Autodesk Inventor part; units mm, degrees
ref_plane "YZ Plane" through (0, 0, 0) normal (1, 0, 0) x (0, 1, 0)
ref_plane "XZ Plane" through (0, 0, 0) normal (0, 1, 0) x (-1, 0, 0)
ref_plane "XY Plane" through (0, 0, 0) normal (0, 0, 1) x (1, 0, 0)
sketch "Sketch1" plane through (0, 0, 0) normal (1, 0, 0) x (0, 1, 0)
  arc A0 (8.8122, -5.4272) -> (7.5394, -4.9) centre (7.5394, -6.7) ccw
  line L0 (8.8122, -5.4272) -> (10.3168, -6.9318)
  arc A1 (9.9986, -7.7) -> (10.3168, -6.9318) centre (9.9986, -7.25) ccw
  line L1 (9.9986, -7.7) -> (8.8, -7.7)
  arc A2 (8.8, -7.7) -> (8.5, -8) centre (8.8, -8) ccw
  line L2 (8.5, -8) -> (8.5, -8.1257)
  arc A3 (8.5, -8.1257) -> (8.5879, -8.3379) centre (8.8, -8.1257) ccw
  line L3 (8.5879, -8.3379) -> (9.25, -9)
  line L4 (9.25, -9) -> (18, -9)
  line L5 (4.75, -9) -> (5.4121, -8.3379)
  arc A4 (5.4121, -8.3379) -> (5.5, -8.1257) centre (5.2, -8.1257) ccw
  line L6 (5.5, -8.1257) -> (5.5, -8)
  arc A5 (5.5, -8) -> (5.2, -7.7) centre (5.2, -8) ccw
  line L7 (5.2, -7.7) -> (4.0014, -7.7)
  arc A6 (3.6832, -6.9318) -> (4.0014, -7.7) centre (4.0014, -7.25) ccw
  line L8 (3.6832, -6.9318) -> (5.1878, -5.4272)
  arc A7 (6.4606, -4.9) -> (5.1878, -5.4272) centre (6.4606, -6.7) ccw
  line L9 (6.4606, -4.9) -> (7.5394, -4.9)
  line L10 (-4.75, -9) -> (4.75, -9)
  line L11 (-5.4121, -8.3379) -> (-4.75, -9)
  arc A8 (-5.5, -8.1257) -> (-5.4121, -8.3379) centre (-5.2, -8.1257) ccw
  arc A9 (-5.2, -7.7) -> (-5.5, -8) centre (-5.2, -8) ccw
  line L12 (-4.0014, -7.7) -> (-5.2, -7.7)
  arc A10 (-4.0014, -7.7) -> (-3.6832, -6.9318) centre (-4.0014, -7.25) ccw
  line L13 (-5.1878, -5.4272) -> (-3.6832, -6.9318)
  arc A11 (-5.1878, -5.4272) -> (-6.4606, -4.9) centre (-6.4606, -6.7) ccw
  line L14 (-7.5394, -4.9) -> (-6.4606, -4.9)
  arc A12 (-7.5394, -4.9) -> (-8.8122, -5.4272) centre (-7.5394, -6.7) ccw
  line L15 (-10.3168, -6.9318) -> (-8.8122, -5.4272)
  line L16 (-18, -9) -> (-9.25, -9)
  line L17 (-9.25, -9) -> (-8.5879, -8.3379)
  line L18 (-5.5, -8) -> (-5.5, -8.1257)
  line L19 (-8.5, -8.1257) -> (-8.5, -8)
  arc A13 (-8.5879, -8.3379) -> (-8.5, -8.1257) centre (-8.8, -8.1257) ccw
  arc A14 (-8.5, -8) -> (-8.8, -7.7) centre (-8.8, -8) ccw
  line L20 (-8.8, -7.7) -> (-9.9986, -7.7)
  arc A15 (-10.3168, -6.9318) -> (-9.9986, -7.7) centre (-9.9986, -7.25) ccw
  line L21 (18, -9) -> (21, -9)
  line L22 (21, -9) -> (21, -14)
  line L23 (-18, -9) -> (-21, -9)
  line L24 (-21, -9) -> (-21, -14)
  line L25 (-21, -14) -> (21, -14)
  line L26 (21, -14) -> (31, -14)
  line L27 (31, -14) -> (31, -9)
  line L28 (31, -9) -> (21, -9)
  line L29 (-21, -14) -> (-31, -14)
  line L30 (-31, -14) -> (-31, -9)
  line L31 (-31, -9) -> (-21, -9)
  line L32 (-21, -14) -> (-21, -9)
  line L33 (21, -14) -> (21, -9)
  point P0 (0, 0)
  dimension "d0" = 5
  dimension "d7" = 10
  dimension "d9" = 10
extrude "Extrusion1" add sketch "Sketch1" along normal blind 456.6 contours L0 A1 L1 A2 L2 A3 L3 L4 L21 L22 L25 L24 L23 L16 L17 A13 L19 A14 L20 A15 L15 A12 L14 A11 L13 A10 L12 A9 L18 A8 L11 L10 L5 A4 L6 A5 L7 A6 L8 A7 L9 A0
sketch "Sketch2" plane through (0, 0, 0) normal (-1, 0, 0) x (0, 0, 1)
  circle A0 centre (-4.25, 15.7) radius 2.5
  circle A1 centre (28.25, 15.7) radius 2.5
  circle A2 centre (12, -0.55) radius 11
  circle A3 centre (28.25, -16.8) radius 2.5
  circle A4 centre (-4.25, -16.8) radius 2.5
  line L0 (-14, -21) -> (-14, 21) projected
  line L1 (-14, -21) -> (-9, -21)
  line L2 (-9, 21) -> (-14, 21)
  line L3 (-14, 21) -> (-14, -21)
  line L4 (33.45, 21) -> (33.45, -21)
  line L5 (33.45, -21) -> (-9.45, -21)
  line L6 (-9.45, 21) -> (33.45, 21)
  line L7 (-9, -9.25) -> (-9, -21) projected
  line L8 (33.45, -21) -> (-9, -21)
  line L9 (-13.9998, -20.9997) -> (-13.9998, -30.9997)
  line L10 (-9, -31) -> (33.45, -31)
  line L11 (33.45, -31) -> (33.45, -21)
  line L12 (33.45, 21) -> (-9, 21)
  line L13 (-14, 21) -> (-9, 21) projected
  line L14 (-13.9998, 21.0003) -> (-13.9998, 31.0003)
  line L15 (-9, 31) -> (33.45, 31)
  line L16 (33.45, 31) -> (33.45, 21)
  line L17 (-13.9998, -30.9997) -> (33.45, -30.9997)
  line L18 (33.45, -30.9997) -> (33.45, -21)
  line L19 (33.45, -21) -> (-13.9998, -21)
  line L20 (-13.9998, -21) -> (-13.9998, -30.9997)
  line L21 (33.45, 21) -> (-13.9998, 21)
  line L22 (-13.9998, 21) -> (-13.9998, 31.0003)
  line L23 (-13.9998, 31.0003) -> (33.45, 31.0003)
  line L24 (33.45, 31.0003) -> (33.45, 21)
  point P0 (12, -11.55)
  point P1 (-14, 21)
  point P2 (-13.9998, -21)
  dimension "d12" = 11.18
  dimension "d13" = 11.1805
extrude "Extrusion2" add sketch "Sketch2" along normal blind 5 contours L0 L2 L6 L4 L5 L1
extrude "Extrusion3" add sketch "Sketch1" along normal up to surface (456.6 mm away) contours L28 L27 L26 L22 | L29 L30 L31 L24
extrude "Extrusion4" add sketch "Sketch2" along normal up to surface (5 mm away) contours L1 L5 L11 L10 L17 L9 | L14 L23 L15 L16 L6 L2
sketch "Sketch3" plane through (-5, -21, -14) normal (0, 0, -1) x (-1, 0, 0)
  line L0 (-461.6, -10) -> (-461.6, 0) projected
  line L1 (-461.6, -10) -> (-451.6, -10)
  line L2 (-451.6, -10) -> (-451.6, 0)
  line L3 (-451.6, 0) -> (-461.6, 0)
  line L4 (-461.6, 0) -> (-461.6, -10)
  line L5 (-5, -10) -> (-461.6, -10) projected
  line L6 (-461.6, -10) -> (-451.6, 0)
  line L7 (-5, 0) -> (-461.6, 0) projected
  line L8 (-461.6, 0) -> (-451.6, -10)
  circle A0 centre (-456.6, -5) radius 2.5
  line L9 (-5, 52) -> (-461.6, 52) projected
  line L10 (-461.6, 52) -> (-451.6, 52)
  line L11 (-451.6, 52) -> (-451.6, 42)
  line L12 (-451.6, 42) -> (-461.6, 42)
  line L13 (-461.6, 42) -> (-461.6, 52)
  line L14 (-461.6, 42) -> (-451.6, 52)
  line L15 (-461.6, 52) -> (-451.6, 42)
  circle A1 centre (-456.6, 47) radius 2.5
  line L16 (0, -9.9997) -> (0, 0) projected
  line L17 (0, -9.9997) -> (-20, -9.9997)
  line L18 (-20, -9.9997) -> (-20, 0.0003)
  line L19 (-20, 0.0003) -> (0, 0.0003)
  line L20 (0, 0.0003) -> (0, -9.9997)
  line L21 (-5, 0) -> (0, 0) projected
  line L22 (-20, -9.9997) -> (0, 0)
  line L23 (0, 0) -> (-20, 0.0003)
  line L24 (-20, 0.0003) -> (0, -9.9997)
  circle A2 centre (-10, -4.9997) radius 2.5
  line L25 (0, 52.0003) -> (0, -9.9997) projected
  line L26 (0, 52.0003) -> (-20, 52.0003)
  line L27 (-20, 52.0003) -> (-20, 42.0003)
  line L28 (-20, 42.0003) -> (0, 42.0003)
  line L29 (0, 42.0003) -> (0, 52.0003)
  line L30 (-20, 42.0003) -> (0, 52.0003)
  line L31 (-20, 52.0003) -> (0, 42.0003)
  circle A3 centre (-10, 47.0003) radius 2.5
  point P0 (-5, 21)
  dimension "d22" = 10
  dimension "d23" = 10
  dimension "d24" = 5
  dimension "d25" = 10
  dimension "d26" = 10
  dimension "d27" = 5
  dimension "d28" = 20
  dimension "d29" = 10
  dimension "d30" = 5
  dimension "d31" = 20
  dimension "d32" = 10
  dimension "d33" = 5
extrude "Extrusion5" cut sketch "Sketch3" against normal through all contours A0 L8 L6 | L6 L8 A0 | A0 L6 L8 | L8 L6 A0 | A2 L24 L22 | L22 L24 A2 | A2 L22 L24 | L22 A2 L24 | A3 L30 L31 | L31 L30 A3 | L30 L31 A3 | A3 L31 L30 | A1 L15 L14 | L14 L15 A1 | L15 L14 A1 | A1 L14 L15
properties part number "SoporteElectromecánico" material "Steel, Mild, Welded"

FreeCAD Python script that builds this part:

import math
import FreeCAD as App
import Part
import Sketcher
from FreeCAD import Vector


def add_polygon(sketch, points):
    """Adds a closed chain of lines whose ends are joined by coincident constraints."""
    first, n = sketch.GeometryCount, len(points)
    for a, b in zip(points, points[1:] + points[:1]):
        sketch.addGeometry(Part.LineSegment(App.Vector(*a, 0), App.Vector(*b, 0)), False)
    for i in range(n):
        sketch.addConstraint(Sketcher.Constraint("Coincident", first + i, 2, first + (i + 1) % n, 1))

doc = App.newDocument("Part")
params = doc.addObject("Spreadsheet::Sheet", "Params")
for row, (alias, value) in enumerate([
    ("sketch1_height", "5 mm"),
    ("sketch1_radius", "1.8 mm"),
    ("sketch1_radius2", "0.3 mm"),
    ("sketch1_width", "42 mm"),
    ("sketch1_radius3", "0.45 mm"),
    ("pad1_length", "456.6 mm"),
    ("sketch2_diameter", "5 mm"),
    ("sketch2_diameter2", "22 mm"),
    ("sketch2_width", "42 mm"),
    ("sketch2_height", "47.45 mm"),
    ("pad2_length", "5 mm"),
    ("sketch3_width", "10 mm"),
    ("sketch3_height", "5 mm"),
    ("pad3_length", "456.6 mm"),
    ("sketch4_width", "10 mm"),
    ("sketch4_height", "47.45 mm"),
    ("pad4_length", "5 mm"),
    ("sketch5_diameter", "5 mm"),
], start=1):
    params.set(f"A{row}", alias)
    params.set(f"B{row}", "=" + value)
    params.setAlias(f"B{row}", alias)

body = doc.addObject("PartDesign::Body", "Body")

# Sketch on YZ plane
sketch1 = body.newObject("Sketcher::SketchObject", "Sketch")
sketch1.AttachmentSupport = (doc.getObject("YZ_Plane"), [""])
sketch1.MapMode = "FlatFace"
sketch1.addGeometry([
    Part.LineSegment(Vector(10.3168, -6.9318, 0), Vector(8.8122, -5.4272, 0)),  # 0
    Part.ArcOfCircle(Part.Circle(Vector(7.5394, -6.7, 0), Vector(0, 0, 1), 1.800011), math.radians(45), math.radians(90)),  # 1
    Part.LineSegment(Vector(7.5394, -4.9, 0), Vector(6.4606, -4.9, 0)),  # 2
    Part.ArcOfCircle(Part.Circle(Vector(6.4606, -6.7, 0), Vector(0, 0, 1), 1.8), math.radians(90), math.radians(135)),  # 3
    Part.LineSegment(Vector(5.1878, -5.4272, 0), Vector(3.6832, -6.9318, 0)),  # 4
    Part.ArcOfCircle(Part.Circle(Vector(4.0014, -7.25, 0), Vector(0, 0, 1), 0.450003), math.radians(135), math.radians(270)),  # 5
    Part.LineSegment(Vector(4.0014, -7.7, 0), Vector(5.2, -7.7, 0)),  # 6
    Part.ArcOfCircle(Part.Circle(Vector(5.2, -8, 0), Vector(0, 0, 1), 0.3), math.radians(0), math.radians(90)),  # 7
    Part.LineSegment(Vector(5.5, -8, 0), Vector(5.5, -8.1257, 0)),  # 8
    Part.ArcOfCircle(Part.Circle(Vector(5.2, -8.1257, 0), Vector(0, 0, 1), 0.300025), math.radians(-45.013504), math.radians(0)),  # 9
    Part.LineSegment(Vector(5.4121, -8.3379, 0), Vector(4.75, -9, 0)),  # 10
    Part.LineSegment(Vector(4.75, -9, 0), Vector(-4.75, -9, 0)),  # 11
    Part.LineSegment(Vector(-4.75, -9, 0), Vector(-5.4121, -8.3379, 0)),  # 12
    Part.ArcOfCircle(Part.Circle(Vector(-5.2, -8.1257, 0), Vector(0, 0, 1), 0.3), math.radians(180), math.radians(225.013504)),  # 13
    Part.LineSegment(Vector(-5.5, -8.1257, 0), Vector(-5.5, -8, 0)),  # 14
    Part.ArcOfCircle(Part.Circle(Vector(-5.2, -8, 0), Vector(0, 0, 1), 0.3), math.radians(90), math.radians(180)),  # 15
    Part.LineSegment(Vector(-5.2, -7.7, 0), Vector(-4.0014, -7.7, 0)),  # 16
    Part.ArcOfCircle(Part.Circle(Vector(-4.0014, -7.25, 0), Vector(0, 0, 1), 0.45), math.radians(-90), math.radians(45)),  # 17
    Part.LineSegment(Vector(-3.6832, -6.9318, 0), Vector(-5.1878, -5.4272, 0)),  # 18
    Part.ArcOfCircle(Part.Circle(Vector(-6.4606, -6.7, 0), Vector(0, 0, 1), 1.800011), math.radians(45), math.radians(90)),  # 19
    Part.LineSegment(Vector(-6.4606, -4.9, 0), Vector(-7.5394, -4.9, 0)),  # 20
    Part.ArcOfCircle(Part.Circle(Vector(-7.5394, -6.7, 0), Vector(0, 0, 1), 1.8), math.radians(90), math.radians(135)),  # 21
    Part.LineSegment(Vector(-8.8122, -5.4272, 0), Vector(-10.3168, -6.9318, 0)),  # 22
    Part.ArcOfCircle(Part.Circle(Vector(-9.9986, -7.25, 0), Vector(0, 0, 1), 0.450003), math.radians(135), math.radians(270)),  # 23
    Part.LineSegment(Vector(-9.9986, -7.7, 0), Vector(-8.8, -7.7, 0)),  # 24
    Part.ArcOfCircle(Part.Circle(Vector(-8.8, -8, 0), Vector(0, 0, 1), 0.3), math.radians(0), math.radians(90)),  # 25
    Part.LineSegment(Vector(-8.5, -8, 0), Vector(-8.5, -8.1257, 0)),  # 26
    Part.ArcOfCircle(Part.Circle(Vector(-8.8, -8.1257, 0), Vector(0, 0, 1), 0.300025), math.radians(-45.013504), math.radians(0)),  # 27
    Part.LineSegment(Vector(-8.5879, -8.3379, 0), Vector(-9.25, -9, 0)),  # 28
    Part.LineSegment(Vector(-9.25, -9, 0), Vector(-21, -9, 0)),  # 29
    Part.LineSegment(Vector(-21, -9, 0), Vector(-21, -14, 0)),  # 30
    Part.LineSegment(Vector(-21, -14, 0), Vector(21, -14, 0)),  # 31
    Part.LineSegment(Vector(21, -14, 0), Vector(21, -9, 0)),  # 32
    Part.LineSegment(Vector(21, -9, 0), Vector(9.25, -9, 0)),  # 33
    Part.LineSegment(Vector(9.25, -9, 0), Vector(8.5879, -8.3379, 0)),  # 34
    Part.ArcOfCircle(Part.Circle(Vector(8.8, -8.1257, 0), Vector(0, 0, 1), 0.3), math.radians(180), math.radians(225.013504)),  # 35
    Part.LineSegment(Vector(8.5, -8.1257, 0), Vector(8.5, -8, 0)),  # 36
    Part.ArcOfCircle(Part.Circle(Vector(8.8, -8, 0), Vector(0, 0, 1), 0.3), math.radians(90), math.radians(180)),  # 37
    Part.LineSegment(Vector(8.8, -7.7, 0), Vector(9.9986, -7.7, 0)),  # 38
    Part.ArcOfCircle(Part.Circle(Vector(9.9986, -7.25, 0), Vector(0, 0, 1), 0.45), math.radians(-90), math.radians(45)),  # 39
], False)
sketch1.addConstraint([
    Sketcher.Constraint("Tangent", 0, 2, 1, 1),
    Sketcher.Constraint("Tangent", 1, 2, 2, 1),
    Sketcher.Constraint("Tangent", 2, 2, 3, 1),
    Sketcher.Constraint("Tangent", 3, 2, 4, 1),
    Sketcher.Constraint("Tangent", 4, 2, 5, 1),
    Sketcher.Constraint("Tangent", 5, 2, 6, 1),
    Sketcher.Constraint("Tangent", 6, 2, 7, 2),
    Sketcher.Constraint("Tangent", 7, 1, 8, 1),
    Sketcher.Constraint("Tangent", 8, 2, 9, 2),
    Sketcher.Constraint("Tangent", 9, 1, 10, 1),
    Sketcher.Constraint("Coincident", 10, 2, 11, 1),
    Sketcher.Constraint("Coincident", 11, 2, 12, 1),
    Sketcher.Constraint("Tangent", 12, 2, 13, 2),
    Sketcher.Constraint("Tangent", 13, 1, 14, 1),
    Sketcher.Constraint("Tangent", 14, 2, 15, 2),
    Sketcher.Constraint("Tangent", 15, 1, 16, 1),
    Sketcher.Constraint("Tangent", 16, 2, 17, 1),
    Sketcher.Constraint("Tangent", 17, 2, 18, 1),
    Sketcher.Constraint("Tangent", 18, 2, 19, 1),
    Sketcher.Constraint("Tangent", 19, 2, 20, 1),
    Sketcher.Constraint("Tangent", 20, 2, 21, 1),
    Sketcher.Constraint("Tangent", 21, 2, 22, 1),
    Sketcher.Constraint("Tangent", 22, 2, 23, 1),
    Sketcher.Constraint("Tangent", 23, 2, 24, 1),
    Sketcher.Constraint("Tangent", 24, 2, 25, 2),
    Sketcher.Constraint("Tangent", 25, 1, 26, 1),
    Sketcher.Constraint("Tangent", 26, 2, 27, 2),
    Sketcher.Constraint("Tangent", 27, 1, 28, 1),
    Sketcher.Constraint("Coincident", 28, 2, 29, 1),
    Sketcher.Constraint("Coincident", 29, 2, 30, 1),
    Sketcher.Constraint("Coincident", 30, 2, 31, 1),
    Sketcher.Constraint("Coincident", 31, 2, 32, 1),
    Sketcher.Constraint("Coincident", 32, 2, 33, 1),
    Sketcher.Constraint("Coincident", 33, 2, 34, 1),
    Sketcher.Constraint("Tangent", 34, 2, 35, 2),
    Sketcher.Constraint("Tangent", 35, 1, 36, 1),
    Sketcher.Constraint("Tangent", 36, 2, 37, 2),
    Sketcher.Constraint("Tangent", 37, 1, 38, 1),
    Sketcher.Constraint("Tangent", 38, 2, 39, 1),
    Sketcher.Constraint("Tangent", 39, 2, 0, 1),
    Sketcher.Constraint("Horizontal", 2),
    Sketcher.Constraint("Horizontal", 6),
    Sketcher.Constraint("Vertical", 8),
    Sketcher.Constraint("Horizontal", 11),
    Sketcher.Constraint("Vertical", 14),
    Sketcher.Constraint("Horizontal", 16),
    Sketcher.Constraint("Horizontal", 20),
    Sketcher.Constraint("Horizontal", 24),
    Sketcher.Constraint("Vertical", 26),
    Sketcher.Constraint("Horizontal", 29),
    Sketcher.Constraint("Vertical", 30),
    Sketcher.Constraint("Horizontal", 31),
    Sketcher.Constraint("Vertical", 32),
    Sketcher.Constraint("Horizontal", 33),
    Sketcher.Constraint("Vertical", 36),
    Sketcher.Constraint("Horizontal", 38),
    Sketcher.Constraint("Equal", 1, 3),
    Sketcher.Constraint("Equal", 7, 9),
    Sketcher.Constraint("Equal", 9, 13),
    Sketcher.Constraint("Equal", 13, 15),
    Sketcher.Constraint("Equal", 5, 17),
    Sketcher.Constraint("Equal", 3, 19),
    Sketcher.Constraint("Equal", 19, 21),
    Sketcher.Constraint("Equal", 17, 23),
    Sketcher.Constraint("Equal", 15, 25),
    Sketcher.Constraint("Equal", 25, 27),
    Sketcher.Constraint("Equal", 27, 35),
    Sketcher.Constraint("Equal", 35, 37),
    Sketcher.Constraint("Equal", 23, 39),
    Sketcher.Constraint("Symmetric", 9, 3, 13, 3, -2),
    Sketcher.Constraint("Symmetric", 5, 3, 17, 3, -2),
    Sketcher.Constraint("Symmetric", 3, 3, 19, 3, -2),
    Sketcher.Constraint("Symmetric", 27, 3, 35, 3, -2),
    Sketcher.Constraint("Symmetric", 23, 3, 39, 3, -2),
    Sketcher.Constraint("Symmetric", 29, 2, 32, 2, -2),
    Sketcher.Constraint("Perpendicular", 0, 4),
    Sketcher.Constraint("Parallel", 4, 10),
    Sketcher.Constraint("Perpendicular", 10, 12),
    Sketcher.Constraint("Parallel", 12, 18),
    Sketcher.Constraint("Perpendicular", 18, 22),
    Sketcher.Constraint("Parallel", 22, 28),
    Sketcher.Constraint("Perpendicular", 28, 34),
    Sketcher.Constraint("Horizontal", 17, 3, 23, 3),
    Sketcher.Constraint("Horizontal", 13, 3, 27, 3),
    Sketcher.Constraint("Horizontal", 11, 2, 28, 2),
    Sketcher.Constraint("Equal", 16, 24),
    Sketcher.Constraint("DistanceY", 30, 2, 30, 1, 5.0),
    Sketcher.Constraint("Radius", 1, 1.8),
    Sketcher.Constraint("Radius", 7, 0.3),
    Sketcher.Constraint("DistanceX", 31, 1, 31, 2, 42.0),
    Sketcher.Constraint("Radius", 5, 0.45),
    Sketcher.Constraint("DistanceX", 11, 2, 11, 1, 9.5),
    Sketcher.Constraint("DistanceY", 7, 3, -1, 1, 8.0),
    Sketcher.Constraint("DistanceY", 10, 2, -1, 1, 9.0),
    Sketcher.Constraint("DistanceY", 6, 2, 3, 3, 1.0),
    Sketcher.Constraint("DistanceX", 29, 2, 29, 1, 11.75),
    Sketcher.Constraint("DistanceX", -1, 1, 7, 3, 5.2),
    Sketcher.Constraint("DistanceX", 2, 2, 2, 1, 1.0788),
])
sketch1.setExpression("Constraints[86]", "Params.sketch1_height")
sketch1.setExpression("Constraints[87]", "Params.sketch1_radius")
sketch1.setExpression("Constraints[88]", "Params.sketch1_radius2")
sketch1.setExpression("Constraints[89]", "Params.sketch1_width")
sketch1.setExpression("Constraints[90]", "Params.sketch1_radius3")
pad1 = body.newObject("PartDesign::Pad", "Pad")
pad1.Profile = sketch1
pad1.setExpression("Length", "Params.pad1_length")

# Sketch on YZ plane
sketch2 = body.newObject("Sketcher::SketchObject", "Sketch001")
sketch2.AttachmentSupport = (doc.getObject("YZ_Plane"), [""])
sketch2.MapMode = "FlatFace"
add_polygon(sketch2, [(21, -14), (-21, -14), (-21, 33.45), (21, 33.45)])  # lines 0-3
sketch2.addGeometry(Part.Circle(Vector(-16.8, -4.25, 0), Vector(0, 0, 1), 2.5), False)  # 4
sketch2.addGeometry(Part.Circle(Vector(-16.8, 28.25, 0), Vector(0, 0, 1), 2.5), False)  # 5
sketch2.addGeometry(Part.Circle(Vector(-0.55, 12, 0), Vector(0, 0, 1), 11), False)  # 6
sketch2.addGeometry(Part.Circle(Vector(15.7, -4.25, 0), Vector(0, 0, 1), 2.5), False)  # 7
sketch2.addGeometry(Part.Circle(Vector(15.7, 28.25, 0), Vector(0, 0, 1), 2.5), False)  # 8
sketch2.addConstraint([
    Sketcher.Constraint("Horizontal", 0),
    Sketcher.Constraint("Vertical", 1),
    Sketcher.Constraint("Horizontal", 2),
    Sketcher.Constraint("Vertical", 3),
    Sketcher.Constraint("Equal", 4, 5),
    Sketcher.Constraint("Equal", 5, 7),
    Sketcher.Constraint("Equal", 7, 8),
    Sketcher.Constraint("Horizontal", 4, 3, 7, 3),
    Sketcher.Constraint("Horizontal", 5, 3, 8, 3),
    Sketcher.Constraint("Vertical", 4, 3, 5, 3),
    Sketcher.Constraint("Vertical", 7, 3, 8, 3),
    Sketcher.Constraint("Diameter", 4, 5.0),
    Sketcher.Constraint("Diameter", 6, 22.0),
    Sketcher.Constraint("DistanceX", 0, 2, 0, 1, 42.0),
    Sketcher.Constraint("DistanceY", -1, 1, 6, 3, 12.0),
    Sketcher.Constraint("DistanceX", 0, 2, -1, 1, 21.0),
    Sketcher.Constraint("DistanceY", 0, 2, -1, 1, 14.0),
    Sketcher.Constraint("DistanceY", 1, 1, 1, 2, 47.45),
    Sketcher.Constraint("DistanceX", 4, 3, -1, 1, 16.8),
    Sketcher.Constraint("DistanceX", -1, 1, 7, 3, 15.7),
    Sketcher.Constraint("DistanceY", 4, 3, 5, 3, 32.5),
    Sketcher.Constraint("DistanceY", 5, 3, 1, 2, 5.2),
    Sketcher.Constraint("DistanceX", 6, 3, -1, 1, 0.55),
])
sketch2.setExpression("Constraints[15]", "Params.sketch2_diameter")
sketch2.setExpression("Constraints[16]", "Params.sketch2_diameter2")
sketch2.setExpression("Constraints[17]", "Params.sketch2_width")
sketch2.setExpression("Constraints[21]", "Params.sketch2_height")
pad2 = body.newObject("PartDesign::Pad", "Pad001")
pad2.Profile = sketch2
pad2.setExpression("Length", "Params.pad2_length")
pad2.Reversed = True

# Sketch on YZ plane
sketch3 = body.newObject("Sketcher::SketchObject", "Sketch002")
sketch3.AttachmentSupport = (doc.getObject("YZ_Plane"), [""])
sketch3.MapMode = "FlatFace"
add_polygon(sketch3, [(31, -9), (21, -9), (21, -14), (31, -14)])  # lines 0-3
add_polygon(sketch3, [(-31, -14), (-21, -14), (-21, -9), (-31, -9)])  # lines 4-7
sketch3.addConstraint([
    Sketcher.Constraint("Horizontal", 0),
    Sketcher.Constraint("Vertical", 1),
    Sketcher.Constraint("Horizontal", 2),
    Sketcher.Constraint("Vertical", 3),
    Sketcher.Constraint("Horizontal", 4),
    Sketcher.Constraint("Vertical", 5),
    Sketcher.Constraint("Horizontal", 6),
    Sketcher.Constraint("Vertical", 7),
    Sketcher.Constraint("Symmetric", 1, 2, 4, 2, -2),
    Sketcher.Constraint("Symmetric", 3, 2, 6, 2, -2),
    Sketcher.Constraint("DistanceX", 0, 2, 0, 1, 10.0),
    Sketcher.Constraint("DistanceY", 1, 2, 1, 1, 5.0),
    Sketcher.Constraint("DistanceX", -1, 1, 0, 2, 21.0),
    Sketcher.Constraint("DistanceY", 0, 2, -1, 1, 9.0),
])
sketch3.setExpression("Constraints[18]", "Params.sketch3_width")
sketch3.setExpression("Constraints[19]", "Params.sketch3_height")
pad3 = body.newObject("PartDesign::Pad", "Pad002")
pad3.Profile = sketch3
pad3.setExpression("Length", "Params.pad3_length")

# Sketch on YZ plane
sketch4 = body.newObject("Sketcher::SketchObject", "Sketch003")
sketch4.AttachmentSupport = (doc.getObject("YZ_Plane"), [""])
sketch4.MapMode = "FlatFace"
add_polygon(sketch4, [(-21, 33.45), (-21, -14), (-30.9997, -13.9998), (-31, -9), (-31, 33.45)])  # lines 0-4
add_polygon(sketch4, [(31.0003, -13.9998), (21, -14), (21, 33.45), (31, 33.45), (31.000268, -9)])  # lines 5-9
sketch4.addConstraint([
    Sketcher.Constraint("Vertical", 0),
    Sketcher.Constraint("Horizontal", 1),
    Sketcher.Constraint("Vertical", 2),
    Sketcher.Constraint("Vertical", 3),
    Sketcher.Constraint("Horizontal", 4),
    Sketcher.Constraint("Horizontal", 5),
    Sketcher.Constraint("Vertical", 6),
    Sketcher.Constraint("Horizontal", 7),
    Sketcher.Constraint("Vertical", 8),
    Sketcher.Constraint("Vertical", 9),
    Sketcher.Constraint("Symmetric", 0, 2, 5, 2, -2),
    Sketcher.Constraint("Symmetric", 3, 2, 7, 2, -2),
    Sketcher.Constraint("Horizontal", 2, 2, 8, 2),
    Sketcher.Constraint("DistanceX", 4, 1, 4, 2, 10.0),
    Sketcher.Constraint("DistanceX", 0, 2, -1, 1, 21.0),
    Sketcher.Constraint("DistanceY", 0, 2, -1, 1, 14.0),
    Sketcher.Constraint("DistanceY", 2, 2, -1, 1, 9.0),
    Sketcher.Constraint("DistanceY", 0, 2, 0, 1, 47.45),
])
sketch4.setExpression("Constraints[23]", "Params.sketch4_width")
sketch4.setExpression("Constraints[27]", "Params.sketch4_height")
pad4 = body.newObject("PartDesign::Pad", "Pad003")
pad4.Profile = sketch4
pad4.setExpression("Length", "Params.pad4_length")
pad4.Reversed = True

# Sketch on XY plane
sketch5 = body.newObject("Sketcher::SketchObject", "Sketch004")
sketch5.AttachmentSupport = (doc.getObject("XY_Plane"), [""])
sketch5.MapMode = "FlatFace"
sketch5.AttachmentOffset = App.Placement(Vector(0, 0, -14), App.Rotation())
sketch5.addGeometry([
    Part.Circle(Vector(451.6, -26, 0), Vector(0, 0, 1), 2.5),
    Part.Circle(Vector(5, -25.9997, 0), Vector(0, 0, 1), 2.5),
    Part.Circle(Vector(5, 26.0003, 0), Vector(0, 0, 1), 2.5),
    Part.Circle(Vector(451.6, 26, 0), Vector(0, 0, 1), 2.5),
], False)
sketch5.addConstraint([
    Sketcher.Constraint("Equal", 0, 1),
    Sketcher.Constraint("Equal", 1, 2),
    Sketcher.Constraint("Equal", 2, 3),
    Sketcher.Constraint("Symmetric", 0, 3, 3, 3, -1),
    Sketcher.Constraint("Vertical", 1, 3, 2, 3),
    Sketcher.Constraint("Diameter", 0, 5.0),
    Sketcher.Constraint("DistanceX", -1, 1, 1, 3, 5.0),
    Sketcher.Constraint("DistanceY", 0, 3, -1, 1, 26.0),
    Sketcher.Constraint("DistanceY", 1, 3, 2, 3, 52.0),
    Sketcher.Constraint("DistanceX", -1, 1, 0, 3, 451.6),
    Sketcher.Constraint("DistanceY", 1, 3, -1, 1, 25.9997),
])
sketch5.setExpression("Constraints[5]", "Params.sketch5_diameter")
pocket1 = body.newObject("PartDesign::Pocket", "Pocket")
pocket1.Profile = sketch5
pocket1.Type = "ThroughAll"
pocket1.Reversed = True

doc.recompute()
